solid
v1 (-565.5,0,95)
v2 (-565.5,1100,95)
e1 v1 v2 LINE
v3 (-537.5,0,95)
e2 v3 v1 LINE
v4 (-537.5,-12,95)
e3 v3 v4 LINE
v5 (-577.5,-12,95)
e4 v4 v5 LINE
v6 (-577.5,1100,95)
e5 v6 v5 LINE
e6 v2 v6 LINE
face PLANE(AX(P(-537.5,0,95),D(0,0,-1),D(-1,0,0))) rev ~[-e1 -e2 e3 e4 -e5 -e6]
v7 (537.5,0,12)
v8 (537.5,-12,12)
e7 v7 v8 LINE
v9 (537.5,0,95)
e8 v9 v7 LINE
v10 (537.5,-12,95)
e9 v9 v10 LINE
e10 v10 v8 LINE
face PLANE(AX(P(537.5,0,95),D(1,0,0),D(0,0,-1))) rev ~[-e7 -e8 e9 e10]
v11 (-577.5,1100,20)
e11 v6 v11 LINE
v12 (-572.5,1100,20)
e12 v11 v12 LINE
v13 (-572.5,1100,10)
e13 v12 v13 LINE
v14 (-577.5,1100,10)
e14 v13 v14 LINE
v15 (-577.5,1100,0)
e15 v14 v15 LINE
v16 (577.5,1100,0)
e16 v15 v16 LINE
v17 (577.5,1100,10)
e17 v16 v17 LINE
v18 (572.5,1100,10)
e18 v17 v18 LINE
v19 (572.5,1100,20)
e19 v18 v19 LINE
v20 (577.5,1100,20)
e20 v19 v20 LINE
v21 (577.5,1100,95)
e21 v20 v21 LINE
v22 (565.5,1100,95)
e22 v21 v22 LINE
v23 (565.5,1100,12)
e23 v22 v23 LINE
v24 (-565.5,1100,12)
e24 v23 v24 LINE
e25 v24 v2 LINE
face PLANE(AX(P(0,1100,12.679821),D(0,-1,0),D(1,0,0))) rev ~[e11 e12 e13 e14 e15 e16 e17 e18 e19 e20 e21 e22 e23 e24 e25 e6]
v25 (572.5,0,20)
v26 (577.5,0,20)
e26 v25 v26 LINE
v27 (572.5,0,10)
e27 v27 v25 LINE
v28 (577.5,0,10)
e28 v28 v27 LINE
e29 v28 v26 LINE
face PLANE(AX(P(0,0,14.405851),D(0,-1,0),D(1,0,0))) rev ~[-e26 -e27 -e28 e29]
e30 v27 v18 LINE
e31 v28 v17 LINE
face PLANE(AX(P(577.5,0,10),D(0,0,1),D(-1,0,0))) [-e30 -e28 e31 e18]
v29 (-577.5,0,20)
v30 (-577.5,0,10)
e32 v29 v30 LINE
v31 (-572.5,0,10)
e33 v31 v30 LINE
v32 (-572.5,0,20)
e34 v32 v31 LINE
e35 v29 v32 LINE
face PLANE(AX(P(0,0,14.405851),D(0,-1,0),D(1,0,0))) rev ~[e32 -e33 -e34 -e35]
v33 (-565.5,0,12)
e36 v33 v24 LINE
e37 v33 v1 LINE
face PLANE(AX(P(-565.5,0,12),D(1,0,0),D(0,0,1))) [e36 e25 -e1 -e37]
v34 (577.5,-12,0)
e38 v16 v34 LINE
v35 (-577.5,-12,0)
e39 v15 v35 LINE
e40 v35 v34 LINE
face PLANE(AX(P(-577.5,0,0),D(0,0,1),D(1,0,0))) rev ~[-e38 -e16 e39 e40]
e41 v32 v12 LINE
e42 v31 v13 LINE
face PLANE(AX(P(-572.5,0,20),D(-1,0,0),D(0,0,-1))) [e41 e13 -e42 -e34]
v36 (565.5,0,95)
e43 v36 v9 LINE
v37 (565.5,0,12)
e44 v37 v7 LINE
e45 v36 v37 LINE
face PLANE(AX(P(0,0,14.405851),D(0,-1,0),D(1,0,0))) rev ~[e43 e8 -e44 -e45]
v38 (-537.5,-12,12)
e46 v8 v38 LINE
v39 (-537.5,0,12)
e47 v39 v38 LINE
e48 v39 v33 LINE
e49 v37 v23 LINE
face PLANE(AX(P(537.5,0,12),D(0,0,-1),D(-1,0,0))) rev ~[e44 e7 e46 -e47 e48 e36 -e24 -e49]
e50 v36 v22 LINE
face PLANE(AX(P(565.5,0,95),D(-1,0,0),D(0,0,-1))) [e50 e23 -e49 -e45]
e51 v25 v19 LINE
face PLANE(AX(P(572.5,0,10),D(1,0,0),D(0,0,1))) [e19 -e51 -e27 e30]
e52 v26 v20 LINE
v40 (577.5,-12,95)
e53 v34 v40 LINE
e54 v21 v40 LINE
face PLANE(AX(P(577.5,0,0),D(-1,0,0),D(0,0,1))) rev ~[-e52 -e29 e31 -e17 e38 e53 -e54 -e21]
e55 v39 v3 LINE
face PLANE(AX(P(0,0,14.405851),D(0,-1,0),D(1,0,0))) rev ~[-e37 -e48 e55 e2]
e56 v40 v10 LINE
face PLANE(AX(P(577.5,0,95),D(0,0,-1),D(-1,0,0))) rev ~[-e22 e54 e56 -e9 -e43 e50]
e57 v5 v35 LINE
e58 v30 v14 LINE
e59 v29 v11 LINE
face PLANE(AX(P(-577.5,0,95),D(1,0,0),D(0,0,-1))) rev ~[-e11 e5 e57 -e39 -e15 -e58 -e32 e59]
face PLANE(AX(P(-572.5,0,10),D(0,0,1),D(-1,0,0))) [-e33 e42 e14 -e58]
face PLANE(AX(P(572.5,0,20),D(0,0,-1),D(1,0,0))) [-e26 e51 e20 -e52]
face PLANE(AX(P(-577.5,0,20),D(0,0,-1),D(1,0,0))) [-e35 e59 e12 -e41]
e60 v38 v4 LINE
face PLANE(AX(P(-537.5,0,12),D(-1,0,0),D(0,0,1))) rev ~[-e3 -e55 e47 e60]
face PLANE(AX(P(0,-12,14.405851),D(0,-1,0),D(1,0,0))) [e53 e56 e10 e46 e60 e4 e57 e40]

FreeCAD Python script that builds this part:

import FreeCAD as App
import Part
import Sketcher

V = App.Vector
Q = App.Units.Quantity

doc = App.newDocument("Part")
body = doc.addObject("PartDesign::Body", "Body")

sketch1 = body.newObject("Sketcher::SketchObject", "Sketch")
sketch1.AttachmentSupport = (doc.getObject("XZ_Plane"), [""])
sketch1.MapMode = "FlatFace"
sketch1.addGeometry(Part.LineSegment(V(565.5, 12, 0), V(-565.5, 12, 0)), False)
sketch1.addGeometry(Part.LineSegment(V(-565.5, 12, 0), V(-565.5, 95, 0)), False)
sketch1.addGeometry(Part.LineSegment(V(-565.5, 95, 0), V(-577.5, 95, 0)), False)
sketch1.addGeometry(Part.LineSegment(V(-577.5, 95, 0), V(-577.5, 20, 0)), False)
sketch1.addGeometry(Part.LineSegment(V(-577.5, 20, 0), V(-572.5, 20, 0)), False)
sketch1.addGeometry(Part.LineSegment(V(-572.5, 20, 0), V(-572.5, 10, 0)), False)
sketch1.addGeometry(Part.LineSegment(V(-572.5, 10, 0), V(-577.5, 10, 0)), False)
sketch1.addGeometry(Part.LineSegment(V(-577.5, 10, 0), V(-577.5, 0, 0)), False)
sketch1.addGeometry(Part.LineSegment(V(-577.5, 0, 0), V(577.5, 0, 0)), False)
sketch1.addGeometry(Part.LineSegment(V(577.5, 0, 0), V(577.5, 10, 0)), False)
sketch1.addGeometry(Part.LineSegment(V(577.5, 10, 0), V(572.5, 10, 0)), False)
sketch1.addGeometry(Part.LineSegment(V(572.5, 10, 0), V(572.5, 20, 0)), False)
sketch1.addGeometry(Part.LineSegment(V(572.5, 20, 0), V(577.5, 20, 0)), False)
sketch1.addGeometry(Part.LineSegment(V(577.5, 20, 0), V(577.5, 95, 0)), False)
sketch1.addGeometry(Part.LineSegment(V(577.5, 95, 0), V(565.5, 95, 0)), False)
sketch1.addGeometry(Part.LineSegment(V(565.5, 95, 0), V(565.5, 12, 0)), False)
sketch1.addConstraint(Sketcher.Constraint("Coincident", 0, 2, 1, 1))
sketch1.addConstraint(Sketcher.Constraint("Coincident", 1, 2, 2, 1))
sketch1.addConstraint(Sketcher.Constraint("Coincident", 2, 2, 3, 1))
sketch1.addConstraint(Sketcher.Constraint("Coincident", 3, 2, 4, 1))
sketch1.addConstraint(Sketcher.Constraint("Coincident", 4, 2, 5, 1))
sketch1.addConstraint(Sketcher.Constraint("Coincident", 5, 2, 6, 1))
sketch1.addConstraint(Sketcher.Constraint("Coincident", 6, 2, 7, 1))
sketch1.addConstraint(Sketcher.Constraint("Coincident", 7, 2, 8, 1))
sketch1.addConstraint(Sketcher.Constraint("Coincident", 8, 2, 9, 1))
sketch1.addConstraint(Sketcher.Constraint("Coincident", 9, 2, 10, 1))
sketch1.addConstraint(Sketcher.Constraint("Coincident", 10, 2, 11, 1))
sketch1.addConstraint(Sketcher.Constraint("Coincident", 11, 2, 12, 1))
sketch1.addConstraint(Sketcher.Constraint("Coincident", 12, 2, 13, 1))
sketch1.addConstraint(Sketcher.Constraint("Coincident", 13, 2, 14, 1))
sketch1.addConstraint(Sketcher.Constraint("Coincident", 14, 2, 15, 1))
sketch1.addConstraint(Sketcher.Constraint("Coincident", 15, 2, 0, 1))
sketch1.addConstraint(Sketcher.Constraint("Horizontal", 0))
sketch1.addConstraint(Sketcher.Constraint("Vertical", 1))
sketch1.addConstraint(Sketcher.Constraint("Horizontal", 2))
sketch1.addConstraint(Sketcher.Constraint("Vertical", 3))
sketch1.addConstraint(Sketcher.Constraint("Horizontal", 4))
sketch1.addConstraint(Sketcher.Constraint("Vertical", 5))
sketch1.addConstraint(Sketcher.Constraint("Horizontal", 6))
sketch1.addConstraint(Sketcher.Constraint("Vertical", 7))
sketch1.addConstraint(Sketcher.Constraint("Horizontal", 8))
sketch1.addConstraint(Sketcher.Constraint("Vertical", 9))
sketch1.addConstraint(Sketcher.Constraint("Horizontal", 10))
sketch1.addConstraint(Sketcher.Constraint("Vertical", 11))
sketch1.addConstraint(Sketcher.Constraint("Horizontal", 12))
sketch1.addConstraint(Sketcher.Constraint("Vertical", 13))
sketch1.addConstraint(Sketcher.Constraint("Horizontal", 14))
sketch1.addConstraint(Sketcher.Constraint("Vertical", 15))
sketch1.addConstraint(Sketcher.Constraint("Symmetric", 7, 2, 8, 2, -1, 1))
sketch1.addConstraint(Sketcher.Constraint("Symmetric", 5, 2, 10, 2, -2))
sketch1.addConstraint(Sketcher.Constraint("Symmetric", 3, 2, 12, 2, -2))
sketch1.addConstraint(Sketcher.Constraint("Symmetric", 1, 2, 14, 2, -2))
sketch1.addConstraint(Sketcher.Constraint("Vertical", 3, 2, 6, 2))
sketch1.addConstraint(Sketcher.Constraint("Equal", 5, 7))
sketch1.addConstraint(Sketcher.Constraint("DistanceX", 0, 2, 0, 1, Q("1131 mm")))
sketch1.addConstraint(Sketcher.Constraint("DistanceX", 2, 2, 2, 1, Q("12 mm")))
sketch1.addConstraint(Sketcher.Constraint("DistanceX", 4, 1, 4, 2, Q("5 mm")))
sketch1.addConstraint(Sketcher.Constraint("DistanceY", 1, 1, 1, 2, Q("83 mm")))
sketch1.addConstraint(Sketcher.Constraint("DistanceY", 3, 2, 3, 1, Q("75 mm")))
sketch1.addConstraint(Sketcher.Constraint("DistanceY", 5, 2, 5, 1, Q("10 mm")))
pad1 = body.newObject("PartDesign::Pad", "Pad")
pad1.Profile = sketch1
pad1.Length = 1100
pad1.Reversed = True

sketch2 = body.newObject("Sketcher::SketchObject", "Sketch001")
sketch2.AttachmentSupport = (doc.getObject("XZ_Plane"), [""])
sketch2.MapMode = "FlatFace"
sketch2.addGeometry(Part.LineSegment(V(-537.5, 95, 0), V(-577.5, 95, 0)), False)
sketch2.addGeometry(Part.LineSegment(V(-577.5, 95, 0), V(-577.5, 0, 0)), False)
sketch2.addGeometry(Part.LineSegment(V(-577.5, 0, 0), V(577.5, 0, 0)), False)
sketch2.addGeometry(Part.LineSegment(V(577.5, 0, 0), V(577.5, 95, 0)), False)
sketch2.addGeometry(Part.LineSegment(V(577.5, 95, 0), V(537.5, 95, 0)), False)
sketch2.addGeometry(Part.LineSegment(V(537.5, 95, 0), V(537.5, 12, 0)), False)
sketch2.addGeometry(Part.LineSegment(V(537.5, 12, 0), V(-537.5, 12, 0)), False)
sketch2.addGeometry(Part.LineSegment(V(-537.5, 12, 0), V(-537.5, 95, 0)), False)
sketch2.addConstraint(Sketcher.Constraint("Coincident", 0, 2, 1, 1))
sketch2.addConstraint(Sketcher.Constraint("Coincident", 1, 2, 2, 1))
sketch2.addConstraint(Sketcher.Constraint("Coincident", 2, 2, 3, 1))
sketch2.addConstraint(Sketcher.Constraint("Coincident", 3, 2, 4, 1))
sketch2.addConstraint(Sketcher.Constraint("Coincident", 4, 2, 5, 1))
sketch2.addConstraint(Sketcher.Constraint("Coincident", 5, 2, 6, 1))
sketch2.addConstraint(Sketcher.Constraint("Coincident", 6, 2, 7, 1))
sketch2.addConstraint(Sketcher.Constraint("Coincident", 7, 2, 0, 1))
sketch2.addConstraint(Sketcher.Constraint("Horizontal", 0))
sketch2.addConstraint(Sketcher.Constraint("Vertical", 1))
sketch2.addConstraint(Sketcher.Constraint("Horizontal", 2))
sketch2.addConstraint(Sketcher.Constraint("Vertical", 3))
sketch2.addConstraint(Sketcher.Constraint("Horizontal", 4))
sketch2.addConstraint(Sketcher.Constraint("Vertical", 5))
sketch2.addConstraint(Sketcher.Constraint("Horizontal", 6))
sketch2.addConstraint(Sketcher.Constraint("Vertical", 7))
sketch2.addConstraint(Sketcher.Constraint("Symmetric", 1, 2, 2, 2, -1, 1))
sketch2.addConstraint(Sketcher.Constraint("Symmetric", 4, 2, 7, 2, -2))
sketch2.addConstraint(Sketcher.Constraint("DistanceX", 0, 2, 0, 1, Q("40 mm")))
sketch2.addConstraint(Sketcher.Constraint("DistanceX", 2, 1, 2, 2, Q("1155 mm")))
sketch2.addConstraint(Sketcher.Constraint("DistanceY", 1, 2, 1, 1, Q("95 mm")))
sketch2.addConstraint(Sketcher.Constraint("DistanceY", 5, 2, 5, 1, Q("83 mm")))
pad2 = body.newObject("PartDesign::Pad", "Pad001")
pad2.Profile = sketch2
pad2.Length = 12

doc.recompute()
